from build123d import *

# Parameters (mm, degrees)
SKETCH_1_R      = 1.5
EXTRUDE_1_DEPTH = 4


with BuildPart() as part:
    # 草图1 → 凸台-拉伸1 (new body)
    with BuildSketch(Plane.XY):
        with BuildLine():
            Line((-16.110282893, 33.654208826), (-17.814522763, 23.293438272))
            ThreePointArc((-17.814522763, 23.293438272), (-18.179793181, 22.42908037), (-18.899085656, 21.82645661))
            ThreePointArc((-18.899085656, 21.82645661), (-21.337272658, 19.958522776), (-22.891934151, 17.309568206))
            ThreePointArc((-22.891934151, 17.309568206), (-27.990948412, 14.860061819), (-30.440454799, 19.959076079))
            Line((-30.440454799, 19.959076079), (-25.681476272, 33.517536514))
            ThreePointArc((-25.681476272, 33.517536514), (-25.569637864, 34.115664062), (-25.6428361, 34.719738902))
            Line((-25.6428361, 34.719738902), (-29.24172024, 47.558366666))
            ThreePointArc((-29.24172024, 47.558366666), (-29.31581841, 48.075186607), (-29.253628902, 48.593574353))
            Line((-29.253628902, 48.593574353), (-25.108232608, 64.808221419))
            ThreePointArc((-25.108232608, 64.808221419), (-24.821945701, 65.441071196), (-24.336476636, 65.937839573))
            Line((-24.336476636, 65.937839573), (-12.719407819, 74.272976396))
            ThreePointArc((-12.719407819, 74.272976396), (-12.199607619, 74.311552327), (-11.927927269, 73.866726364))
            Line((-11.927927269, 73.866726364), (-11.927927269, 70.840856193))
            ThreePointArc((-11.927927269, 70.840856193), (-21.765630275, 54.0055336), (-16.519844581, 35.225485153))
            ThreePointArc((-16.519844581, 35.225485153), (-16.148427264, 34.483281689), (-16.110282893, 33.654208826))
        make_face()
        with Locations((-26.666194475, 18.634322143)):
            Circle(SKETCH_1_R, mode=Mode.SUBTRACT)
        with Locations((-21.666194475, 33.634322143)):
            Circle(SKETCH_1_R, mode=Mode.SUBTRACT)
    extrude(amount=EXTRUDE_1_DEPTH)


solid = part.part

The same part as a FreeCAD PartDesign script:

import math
import FreeCAD as App
import Part
import Sketcher

doc = App.newDocument("Part")
body = doc.addObject("PartDesign::Body", "Body")

# Sketch on XY plane
sketch1 = body.newObject("Sketcher::SketchObject", "Sketch")
sketch1.AttachmentSupport = (doc.getObject("XY_Plane"), [""])
sketch1.MapMode = "FlatFace"
sketch1.addGeometry([
    Part.LineSegment(App.Vector(-17.8, 23.3, 0), App.Vector(-16.1, 33.7, 0)),  # 0
    Part.ArcOfCircle(Part.Circle(App.Vector(-18.1, 34, 0), App.Vector(0, 0, 1), 2), math.radians(-9), math.radians(39)),  # 1
    Part.ArcOfCircle(Part.Circle(App.Vector(3, 50.8, 0), App.Vector(0, 0, 1), 25), math.radians(127), math.radians(219)),  # 2
    Part.LineSegment(App.Vector(-11.9, 70.8, 0), App.Vector(-11.9, 73.9, 0)),  # 3
    Part.ArcOfCircle(Part.Circle(App.Vector(-12.4, 73.9, 0), App.Vector(0, 0, 1), 0.5), math.radians(0), math.radians(126)),  # 4
    Part.LineSegment(App.Vector(-12.7, 74.3, 0), App.Vector(-24.3, 65.9, 0)),  # 5
    Part.ArcOfCircle(Part.Circle(App.Vector(-23.2, 64.3, 0), App.Vector(0, 0, 1), 2), math.radians(126), math.radians(166)),  # 6
    Part.LineSegment(App.Vector(-25.1, 64.8, 0), App.Vector(-29.3, 48.6, 0)),  # 7
    Part.ArcOfCircle(Part.Circle(App.Vector(-27.3, 48.1, 0), App.Vector(0, 0, 1), 2), math.radians(166), math.radians(196)),  # 8
    Part.LineSegment(App.Vector(-29.2, 47.6, 0), App.Vector(-25.6, 34.7, 0)),  # 9
    Part.ArcOfCircle(Part.Circle(App.Vector(-27.6, 34.2, 0), App.Vector(0, 0, 1), 2), math.radians(-19), math.radians(16)),  # 10
    Part.LineSegment(App.Vector(-25.7, 33.5, 0), App.Vector(-30.4, 20, 0)),  # 11
    Part.ArcOfCircle(Part.Circle(App.Vector(-26.7, 18.6, 0), App.Vector(0, 0, 1), 4), math.radians(161), math.radians(341)),  # 12
    Part.ArcOfCircle(Part.Circle(App.Vector(-15.3, 14.7, 0), App.Vector(0, 0, 1), 8), math.radians(116), math.radians(161)),  # 13
    Part.ArcOfCircle(Part.Circle(App.Vector(-19.8, 23.6, 0), App.Vector(0, 0, 1), 2), math.radians(-64), math.radians(-9)),  # 14
    Part.Circle(App.Vector(-26.7, 18.6, 0), App.Vector(0, 0, 1), 1.5),  # 15
    Part.Circle(App.Vector(-21.7, 33.6, 0), App.Vector(0, 0, 1), 1.5),  # 16
], False)
sketch1.addConstraint([
    Sketcher.Constraint("Tangent", 0, 2, 1, 1),
    Sketcher.Constraint("Tangent", 1, 2, 2, 2),
    Sketcher.Constraint("Coincident", 2, 1, 3, 1),
    Sketcher.Constraint("Tangent", 3, 2, 4, 1),
    Sketcher.Constraint("Tangent", 4, 2, 5, 1),
    Sketcher.Constraint("Tangent", 5, 2, 6, 1),
    Sketcher.Constraint("Tangent", 6, 2, 7, 1),
    Sketcher.Constraint("Tangent", 7, 2, 8, 1),
    Sketcher.Constraint("Tangent", 8, 2, 9, 1),
    Sketcher.Constraint("Tangent", 9, 2, 10, 2),
    Sketcher.Constraint("Tangent", 10, 1, 11, 1),
    Sketcher.Constraint("Tangent", 11, 2, 12, 1),
    Sketcher.Constraint("Tangent", 12, 2, 13, 2),
    Sketcher.Constraint("Tangent", 13, 1, 14, 1),
    Sketcher.Constraint("Tangent", 14, 2, 0, 1),
    Sketcher.Constraint("Vertical", 3),
    Sketcher.Constraint("Coincident", 15, 3, 12, 3),
    Sketcher.Constraint("Equal", 1, 6),
    Sketcher.Constraint("Equal", 6, 8),
    Sketcher.Constraint("Equal", 8, 10),
    Sketcher.Constraint("Equal", 10, 14),
    Sketcher.Constraint("Equal", 15, 16),
    Sketcher.Constraint("Diameter", 15, 3.0),
    Sketcher.Constraint("Radius", 1, 2.0),
    Sketcher.Constraint("Radius", 2, 25.0),
    Sketcher.Constraint("Radius", 12, 4.000002),
    Sketcher.Constraint("Radius", 13, 8.0),
    Sketcher.Constraint("Radius", 4, 0.5),
    Sketcher.Constraint("DistanceX", 12, 3, 16, 3, 5.0),
    Sketcher.Constraint("DistanceY", 12, 3, 16, 3, 15.0),
    Sketcher.Constraint("Distance", 0, 10.5),
    Sketcher.Constraint("DistanceY", 2, 3, 4, 3, 23.058001),
    Sketcher.Constraint("DistanceY", 6, 3, 5, 2, 1.625),
    Sketcher.Constraint("DistanceY", 3, 1, 3, 2, 3.02587),
    Sketcher.Constraint("DistanceX", 1, 3, 2, 3, 21.112899),
    Sketcher.Constraint("DistanceY", 13, 1, 14, 3, 1.791599),
    Sketcher.Constraint("Distance", 5, 14.29793),
    Sketcher.Constraint("Distance", 7, 16.736161),
    Sketcher.Constraint("DistanceY", -1, 1, 6, 3, 64.312839),
    Sketcher.Constraint("DistanceX", 8, 3, -1, 1, 27.315951),
    Sketcher.Constraint("DistanceY", -1, 1, 13, 3, 14.660061),
    Sketcher.Constraint("DistanceY", -1, 1, 6, 2, 64.808221),
    Sketcher.Constraint("DistanceX", 8, 2, -1, 1, 29.24172),
    Sketcher.Constraint("DistanceY", -1, 1, 9, 2, 34.719739),
    Sketcher.Constraint("DistanceY", -1, 1, 12, 2, 17.309568),
])
pad1 = body.newObject("PartDesign::Pad", "Pad")
pad1.Profile = sketch1
pad1.Length = 4

doc.recompute()
